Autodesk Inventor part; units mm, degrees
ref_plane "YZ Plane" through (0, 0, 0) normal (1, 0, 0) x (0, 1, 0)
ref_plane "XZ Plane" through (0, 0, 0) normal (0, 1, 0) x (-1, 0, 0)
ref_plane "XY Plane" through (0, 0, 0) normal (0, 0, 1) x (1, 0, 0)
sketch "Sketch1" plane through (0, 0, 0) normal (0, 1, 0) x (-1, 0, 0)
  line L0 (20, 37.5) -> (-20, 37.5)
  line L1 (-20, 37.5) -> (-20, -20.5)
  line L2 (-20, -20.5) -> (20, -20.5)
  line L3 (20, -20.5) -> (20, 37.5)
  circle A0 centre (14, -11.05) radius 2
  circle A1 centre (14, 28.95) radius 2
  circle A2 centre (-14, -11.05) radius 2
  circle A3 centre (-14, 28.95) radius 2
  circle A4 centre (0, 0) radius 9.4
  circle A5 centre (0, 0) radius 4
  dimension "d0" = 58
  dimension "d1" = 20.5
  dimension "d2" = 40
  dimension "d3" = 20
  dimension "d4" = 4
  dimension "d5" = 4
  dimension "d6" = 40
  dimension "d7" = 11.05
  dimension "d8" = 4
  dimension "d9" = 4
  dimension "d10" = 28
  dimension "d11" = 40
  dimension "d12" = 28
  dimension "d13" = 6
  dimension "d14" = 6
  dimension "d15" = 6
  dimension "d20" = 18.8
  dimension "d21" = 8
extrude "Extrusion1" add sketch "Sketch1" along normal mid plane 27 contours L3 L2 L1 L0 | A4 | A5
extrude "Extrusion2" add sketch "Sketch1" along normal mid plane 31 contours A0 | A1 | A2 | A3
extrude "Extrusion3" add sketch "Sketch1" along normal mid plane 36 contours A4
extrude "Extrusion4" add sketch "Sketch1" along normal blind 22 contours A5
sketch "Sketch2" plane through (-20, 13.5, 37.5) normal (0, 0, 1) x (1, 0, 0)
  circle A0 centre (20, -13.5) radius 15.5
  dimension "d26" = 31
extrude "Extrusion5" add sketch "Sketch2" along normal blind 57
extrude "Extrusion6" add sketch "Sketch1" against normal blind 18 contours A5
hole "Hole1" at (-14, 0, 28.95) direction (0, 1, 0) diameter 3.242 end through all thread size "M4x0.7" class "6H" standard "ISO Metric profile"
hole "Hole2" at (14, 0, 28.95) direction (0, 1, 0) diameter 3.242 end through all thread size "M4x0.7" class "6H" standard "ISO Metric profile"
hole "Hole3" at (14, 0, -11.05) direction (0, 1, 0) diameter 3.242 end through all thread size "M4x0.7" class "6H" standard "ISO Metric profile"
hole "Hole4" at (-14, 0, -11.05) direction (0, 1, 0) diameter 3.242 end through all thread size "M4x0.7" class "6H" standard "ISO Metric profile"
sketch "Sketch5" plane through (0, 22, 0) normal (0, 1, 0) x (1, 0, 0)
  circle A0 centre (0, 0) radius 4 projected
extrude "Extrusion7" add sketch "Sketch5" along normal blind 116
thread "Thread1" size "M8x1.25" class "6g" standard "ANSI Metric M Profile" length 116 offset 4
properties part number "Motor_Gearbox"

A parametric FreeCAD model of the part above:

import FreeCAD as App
import Part
import Sketcher
Q = App.Units.Quantity

doc = App.newDocument("Part")
body = doc.addObject("PartDesign::Body", "Body")

# Sketch on XZ plane
sketch1 = doc.addObject("Sketcher::SketchObject", "Sketch")
body.addObject(sketch1)
sketch1.AttachmentSupport = (doc.XZ_Plane, [""])
sketch1.MapMode = "FlatFace"
sketch1.addGeometry([
    Part.LineSegment(App.Vector(-20, -20.5, 0), App.Vector(-20, 37.5, 0)),  # 0
    Part.LineSegment(App.Vector(-20, 37.5, 0), App.Vector(20, 37.5, 0)),  # 1
    Part.LineSegment(App.Vector(20, 37.5, 0), App.Vector(20, -20.5, 0)),  # 2
    Part.LineSegment(App.Vector(20, -20.5, 0), App.Vector(-20, -20.5, 0)),  # 3
    Part.Circle(App.Vector(14, -11.1, 0), App.Vector(0, 0, 1), 2),  # 4
    Part.Circle(App.Vector(-14, -11.1, 0), App.Vector(0, 0, 1), 2),  # 5
    Part.Circle(App.Vector(14, 28.9, 0), App.Vector(0, 0, 1), 2),  # 6
    Part.Circle(App.Vector(-14, 28.9, 0), App.Vector(0, 0, 1), 2),  # 7
], False)
sketch1.addConstraint([
    Sketcher.Constraint("Coincident", 0, 2, 1, 1),
    Sketcher.Constraint("Coincident", 1, 2, 2, 1),
    Sketcher.Constraint("Coincident", 2, 2, 3, 1),
    Sketcher.Constraint("Coincident", 3, 2, 0, 1),
    Sketcher.Constraint("Vertical", 0),
    Sketcher.Constraint("Horizontal", 1),
    Sketcher.Constraint("Vertical", 2),
    Sketcher.Constraint("Horizontal", 3),
    Sketcher.Constraint("Equal", 4, 5),
    Sketcher.Constraint("Equal", 5, 6),
    Sketcher.Constraint("Equal", 6, 7),
    Sketcher.Constraint("Symmetric", 4, 3, 5, 3, -2),
    Sketcher.Constraint("Symmetric", 6, 3, 7, 3, -2),
    Sketcher.Constraint("Vertical", 4, 3, 6, 3),
    Sketcher.Constraint("Diameter", 4, Q("4 mm")),
    Sketcher.Constraint("DistanceX", 1, 1, 1, 2, Q("40 mm")),
    Sketcher.Constraint("DistanceY", 0, 1, 0, 2, Q("58 mm")),
    Sketcher.Constraint("DistanceX", 0, 2, -1, 1, Q("20 mm")),
    Sketcher.Constraint("DistanceX", 5, 3, 4, 3, Q("28 mm")),
    Sketcher.Constraint("DistanceY", 4, 3, 6, 3, Q("40 mm")),
    Sketcher.Constraint("DistanceY", 2, 2, -1, 1, Q("20.5 mm")),
    Sketcher.Constraint("DistanceY", 4, 3, -1, 1, Q("11.05 mm")),
])
pad1 = doc.addObject("PartDesign::Pad", "Pad")
body.addObject(pad1)
pad1.Profile = sketch1
pad1.Length = 27
pad1.Midplane = True

# Sketch on XZ plane
sketch2 = doc.addObject("Sketcher::SketchObject", "Sketch001")
body.addObject(sketch2)
sketch2.AttachmentSupport = (doc.XZ_Plane, [""])
sketch2.MapMode = "FlatFace"
sketch2.addGeometry([
    Part.Circle(App.Vector(-14, -11.1, 0), App.Vector(0, 0, 1), 2),
    Part.Circle(App.Vector(-14, 28.9, 0), App.Vector(0, 0, 1), 2),
    Part.Circle(App.Vector(14, -11.1, 0), App.Vector(0, 0, 1), 2),
    Part.Circle(App.Vector(14, 28.9, 0), App.Vector(0, 0, 1), 2),
], False)
sketch2.addConstraint([
    Sketcher.Constraint("Equal", 0, 1),
    Sketcher.Constraint("Equal", 1, 2),
    Sketcher.Constraint("Equal", 2, 3),
    Sketcher.Constraint("Symmetric", 0, 3, 2, 3, -2),
    Sketcher.Constraint("Symmetric", 1, 3, 3, 3, -2),
    Sketcher.Constraint("Vertical", 0, 3, 1, 3),
    Sketcher.Constraint("Diameter", 0, Q("4 mm")),
    Sketcher.Constraint("DistanceY", 0, 3, 1, 3, Q("40 mm")),
    Sketcher.Constraint("DistanceX", 0, 3, 2, 3, Q("28 mm")),
    Sketcher.Constraint("DistanceY", 0, 3, -1, 1, Q("11.05 mm")),
])
pad2 = doc.addObject("PartDesign::Pad", "Pad001")
body.addObject(pad2)
pad2.Profile = sketch2
pad2.Length = 31
pad2.Midplane = True

# Sketch on XZ plane
sketch3 = doc.addObject("Sketcher::SketchObject", "Sketch002")
body.addObject(sketch3)
sketch3.AttachmentSupport = (doc.XZ_Plane, [""])
sketch3.MapMode = "FlatFace"
sketch3.addGeometry([
    Part.Circle(App.Vector(0, 0, 0), App.Vector(0, 0, 1), 9.4),
    Part.Circle(App.Vector(0, 0, 0), App.Vector(0, 0, 1), 4),
], False)
sketch3.addConstraint([
    Sketcher.Constraint("Coincident", 0, 3, -1, 1),
    Sketcher.Constraint("Coincident", 1, 3, -1, 1),
    Sketcher.Constraint("Diameter", 1, Q("8 mm")),
    Sketcher.Constraint("Diameter", 0, Q("18.8 mm")),
])
pad3 = doc.addObject("PartDesign::Pad", "Pad002")
body.addObject(pad3)
pad3.Profile = sketch3
pad3.Length = 36
pad3.Midplane = True

# Sketch on XZ plane
sketch4 = doc.addObject("Sketcher::SketchObject", "Sketch003")
body.addObject(sketch4)
sketch4.AttachmentSupport = (doc.XZ_Plane, [""])
sketch4.MapMode = "FlatFace"
sketch4.addGeometry(Part.Circle(App.Vector(0, 0, 0), App.Vector(0, 0, 1), 4), False)
sketch4.addConstraint([
    Sketcher.Constraint("Coincident", 0, 3, -1, 1),
    Sketcher.Constraint("Diameter", 0, Q("8 mm")),
])
pad4 = doc.addObject("PartDesign::Pad", "Pad003")
body.addObject(pad4)
pad4.Profile = sketch4
pad4.Length = 22
pad4.Reversed = True

# Sketch on XY plane
sketch5 = doc.addObject("Sketcher::SketchObject", "Sketch004")
body.addObject(sketch5)
sketch5.AttachmentSupport = (doc.XY_Plane, [""])
sketch5.MapMode = "FlatFace"
sketch5.AttachmentOffset = App.Placement(App.Vector(0, 0, 37.5), App.Rotation())
sketch5.addGeometry(Part.Circle(App.Vector(0, 0, 0), App.Vector(0, 0, 1), 16), False)
sketch5.addConstraint([
    Sketcher.Constraint("Coincident", 0, 3, -1, 1),
    Sketcher.Constraint("Diameter", 0, Q("31 mm")),
])
pad5 = doc.addObject("PartDesign::Pad", "Pad004")
body.addObject(pad5)
pad5.Profile = sketch5
pad5.Length = 57

# Sketch on XZ plane
sketch6 = doc.addObject("Sketcher::SketchObject", "Sketch005")
body.addObject(sketch6)
sketch6.AttachmentSupport = (doc.XZ_Plane, [""])
sketch6.MapMode = "FlatFace"
sketch6.addGeometry(Part.Circle(App.Vector(0, 0, 0), App.Vector(0, 0, 1), 4), False)
sketch6.addConstraint([
    Sketcher.Constraint("Coincident", 0, 3, -1, 1),
    Sketcher.Constraint("Diameter", 0, Q("8 mm")),
])
pad6 = doc.addObject("PartDesign::Pad", "Pad005")
body.addObject(pad6)
pad6.Profile = sketch6
pad6.Length = 18

# Sketch on XZ plane
sketch7 = doc.addObject("Sketcher::SketchObject", "Sketch006")
body.addObject(sketch7)
sketch7.AttachmentSupport = (doc.XZ_Plane, [""])
sketch7.MapMode = "FlatFace"
sketch7.addGeometry(Part.Circle(App.Vector(-14, 28.9, 0), App.Vector(0, 0, 1), 1.6), False)
sketch7.addConstraint([
    Sketcher.Constraint("Diameter", 0, Q("3.242 mm")),
    Sketcher.Constraint("DistanceX", 0, 3, -1, 1, Q("14 mm")),
    Sketcher.Constraint("DistanceY", -1, 1, 0, 3, Q("28.95 mm")),
])
doc.recompute()
hole = doc.addObject("PartDesign::Hole", "Hole")
body.addObject(hole)
hole.Profile = sketch7
hole.ThreadType = "None"
hole.Diameter = 3.242
hole.DepthType = "ThroughAll"

# Sketch on XZ plane
sketch8 = doc.addObject("Sketcher::SketchObject", "Sketch007")
body.addObject(sketch8)
sketch8.AttachmentSupport = (doc.XZ_Plane, [""])
sketch8.MapMode = "FlatFace"
sketch8.addGeometry(Part.Circle(App.Vector(14, 28.9, 0), App.Vector(0, 0, 1), 1.6), False)
sketch8.addConstraint([
    Sketcher.Constraint("Diameter", 0, Q("3.242 mm")),
    Sketcher.Constraint("DistanceX", -1, 1, 0, 3, Q("14 mm")),
    Sketcher.Constraint("DistanceY", -1, 1, 0, 3, Q("28.95 mm")),
])
doc.recompute()
hole2 = doc.addObject("PartDesign::Hole", "Hole001")
body.addObject(hole2)
hole2.Profile = sketch8
hole2.ThreadType = "None"
hole2.Diameter = 3.242
hole2.DepthType = "ThroughAll"

# Sketch on XZ plane
sketch9 = doc.addObject("Sketcher::SketchObject", "Sketch008")
body.addObject(sketch9)
sketch9.AttachmentSupport = (doc.XZ_Plane, [""])
sketch9.MapMode = "FlatFace"
sketch9.addGeometry(Part.Circle(App.Vector(14, -11.1, 0), App.Vector(0, 0, 1), 1.6), False)
sketch9.addConstraint([
    Sketcher.Constraint("Diameter", 0, Q("3.242 mm")),
    Sketcher.Constraint("DistanceX", -1, 1, 0, 3, Q("14 mm")),
    Sketcher.Constraint("DistanceY", 0, 3, -1, 1, Q("11.05 mm")),
])
doc.recompute()
hole3 = doc.addObject("PartDesign::Hole", "Hole002")
body.addObject(hole3)
hole3.Profile = sketch9
hole3.ThreadType = "None"
hole3.Diameter = 3.242
hole3.DepthType = "ThroughAll"

# Sketch on XZ plane
sketch10 = doc.addObject("Sketcher::SketchObject", "Sketch009")
body.addObject(sketch10)
sketch10.AttachmentSupport = (doc.XZ_Plane, [""])
sketch10.MapMode = "FlatFace"
sketch10.addGeometry(Part.Circle(App.Vector(-14, -11.1, 0), App.Vector(0, 0, 1), 1.6), False)
sketch10.addConstraint([
    Sketcher.Constraint("Diameter", 0, Q("3.242 mm")),
    Sketcher.Constraint("DistanceX", 0, 3, -1, 1, Q("14 mm")),
    Sketcher.Constraint("DistanceY", 0, 3, -1, 1, Q("11.05 mm")),
])
doc.recompute()
hole4 = doc.addObject("PartDesign::Hole", "Hole003")
body.addObject(hole4)
hole4.Profile = sketch10
hole4.ThreadType = "None"
hole4.Diameter = 3.242
hole4.DepthType = "ThroughAll"

# Sketch on XZ plane
sketch11 = doc.addObject("Sketcher::SketchObject", "Sketch010")
body.addObject(sketch11)
sketch11.AttachmentSupport = (doc.XZ_Plane, [""])
sketch11.MapMode = "FlatFace"
sketch11.AttachmentOffset = App.Placement(App.Vector(0, 0, -22), App.Rotation())
sketch11.addGeometry(Part.Circle(App.Vector(0, 0, 0), App.Vector(0, 0, 1), 4), False)
sketch11.addConstraint([
    Sketcher.Constraint("Coincident", 0, 3, -1, 1),
    Sketcher.Constraint("Diameter", 0, Q("8 mm")),
])
pad7 = doc.addObject("PartDesign::Pad", "Pad006")
body.addObject(pad7)
pad7.Profile = sketch11
pad7.Length = 116
pad7.Reversed = True

doc.recompute()
